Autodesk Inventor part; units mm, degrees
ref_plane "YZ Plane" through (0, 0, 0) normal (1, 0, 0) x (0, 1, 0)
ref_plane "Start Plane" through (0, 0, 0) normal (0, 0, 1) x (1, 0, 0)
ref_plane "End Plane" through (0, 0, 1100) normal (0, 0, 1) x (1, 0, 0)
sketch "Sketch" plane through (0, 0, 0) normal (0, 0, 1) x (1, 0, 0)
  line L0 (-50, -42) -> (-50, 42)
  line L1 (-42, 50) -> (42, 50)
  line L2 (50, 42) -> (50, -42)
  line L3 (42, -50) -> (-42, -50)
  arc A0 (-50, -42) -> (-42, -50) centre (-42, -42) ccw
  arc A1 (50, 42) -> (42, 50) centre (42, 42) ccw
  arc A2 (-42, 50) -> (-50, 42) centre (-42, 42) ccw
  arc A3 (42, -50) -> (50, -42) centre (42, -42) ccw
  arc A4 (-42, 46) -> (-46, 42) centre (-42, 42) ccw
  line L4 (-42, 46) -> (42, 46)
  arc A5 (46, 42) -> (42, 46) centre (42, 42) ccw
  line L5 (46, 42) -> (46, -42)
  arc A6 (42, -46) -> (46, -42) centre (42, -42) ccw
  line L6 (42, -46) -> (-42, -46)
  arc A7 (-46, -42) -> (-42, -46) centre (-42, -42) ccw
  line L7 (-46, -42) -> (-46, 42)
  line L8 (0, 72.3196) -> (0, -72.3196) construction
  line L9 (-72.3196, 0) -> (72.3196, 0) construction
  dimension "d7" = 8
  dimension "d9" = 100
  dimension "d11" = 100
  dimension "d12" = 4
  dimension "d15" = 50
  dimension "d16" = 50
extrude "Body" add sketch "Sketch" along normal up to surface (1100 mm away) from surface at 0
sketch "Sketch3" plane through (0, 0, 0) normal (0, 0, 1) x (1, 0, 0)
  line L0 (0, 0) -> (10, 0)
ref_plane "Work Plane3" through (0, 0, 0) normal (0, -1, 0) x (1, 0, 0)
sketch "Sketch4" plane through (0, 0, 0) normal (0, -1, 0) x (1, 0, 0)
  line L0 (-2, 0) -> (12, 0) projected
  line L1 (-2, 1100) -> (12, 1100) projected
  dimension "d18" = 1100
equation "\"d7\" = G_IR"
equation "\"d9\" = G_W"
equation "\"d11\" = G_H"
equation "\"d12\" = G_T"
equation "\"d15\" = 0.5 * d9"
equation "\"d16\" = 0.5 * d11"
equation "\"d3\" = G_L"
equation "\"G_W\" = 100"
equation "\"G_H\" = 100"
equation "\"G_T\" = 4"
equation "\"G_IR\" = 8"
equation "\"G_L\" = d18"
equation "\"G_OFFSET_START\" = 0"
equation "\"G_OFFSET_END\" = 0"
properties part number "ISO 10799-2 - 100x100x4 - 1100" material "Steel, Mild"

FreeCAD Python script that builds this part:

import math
import FreeCAD as App
import Part
import Sketcher

V = App.Vector
Q = App.Units.Quantity

doc = App.newDocument("Part")
body = doc.addObject("PartDesign::Body", "Body")

# Sketch on XY plane
sketch1 = body.newObject("Sketcher::SketchObject", "Sketch")
sketch1.AttachmentSupport = (doc.getObject("XY_Plane"), [""])
sketch1.MapMode = "FlatFace"
sketch1.addGeometry([
    Part.LineSegment(V(-50, 42, 0), V(-50, -42, 0)),  # 0
    Part.ArcOfCircle(Part.Circle(V(-42, -42, 0), V(0, 0, 1), 8), math.radians(180), math.radians(270)),  # 1
    Part.LineSegment(V(-42, -50, 0), V(42, -50, 0)),  # 2
    Part.ArcOfCircle(Part.Circle(V(42, -42, 0), V(0, 0, 1), 8), math.radians(-90), math.radians(0)),  # 3
    Part.LineSegment(V(50, -42, 0), V(50, 42, 0)),  # 4
    Part.ArcOfCircle(Part.Circle(V(42, 42, 0), V(0, 0, 1), 8), math.radians(0), math.radians(90)),  # 5
    Part.LineSegment(V(42, 50, 0), V(-42, 50, 0)),  # 6
    Part.ArcOfCircle(Part.Circle(V(-42, 42, 0), V(0, 0, 1), 8), math.radians(90), math.radians(180)),  # 7
    Part.ArcOfCircle(Part.Circle(V(-42, 42, 0), V(0, 0, 1), 4), math.radians(90), math.radians(180)),  # 8
    Part.LineSegment(V(-42, 46, 0), V(42, 46, 0)),  # 9
    Part.ArcOfCircle(Part.Circle(V(42, 42, 0), V(0, 0, 1), 4), math.radians(0), math.radians(90)),  # 10
    Part.LineSegment(V(46, 42, 0), V(46, -42, 0)),  # 11
    Part.ArcOfCircle(Part.Circle(V(42, -42, 0), V(0, 0, 1), 4), math.radians(-90), math.radians(0)),  # 12
    Part.LineSegment(V(42, -46, 0), V(-42, -46, 0)),  # 13
    Part.ArcOfCircle(Part.Circle(V(-42, -42, 0), V(0, 0, 1), 4), math.radians(180), math.radians(270)),  # 14
    Part.LineSegment(V(-46, -42, 0), V(-46, 42, 0)),  # 15
], False)
sketch1.addConstraint([
    Sketcher.Constraint("Tangent", 0, 2, 1, 1),
    Sketcher.Constraint("Tangent", 1, 2, 2, 1),
    Sketcher.Constraint("Tangent", 2, 2, 3, 1),
    Sketcher.Constraint("Tangent", 3, 2, 4, 1),
    Sketcher.Constraint("Tangent", 4, 2, 5, 1),
    Sketcher.Constraint("Tangent", 5, 2, 6, 1),
    Sketcher.Constraint("Tangent", 6, 2, 7, 1),
    Sketcher.Constraint("Tangent", 7, 2, 0, 1),
    Sketcher.Constraint("Tangent", 8, 1, 9, 1),
    Sketcher.Constraint("Tangent", 9, 2, 10, 2),
    Sketcher.Constraint("Tangent", 10, 1, 11, 1),
    Sketcher.Constraint("Tangent", 11, 2, 12, 2),
    Sketcher.Constraint("Tangent", 12, 1, 13, 1),
    Sketcher.Constraint("Tangent", 13, 2, 14, 2),
    Sketcher.Constraint("Tangent", 14, 1, 15, 1),
    Sketcher.Constraint("Tangent", 15, 2, 8, 2),
    Sketcher.Constraint("Vertical", 0),
    Sketcher.Constraint("Horizontal", 2),
    Sketcher.Constraint("Vertical", 4),
    Sketcher.Constraint("Horizontal", 6),
    Sketcher.Constraint("Horizontal", 9),
    Sketcher.Constraint("Vertical", 11),
    Sketcher.Constraint("Horizontal", 13),
    Sketcher.Constraint("Vertical", 15),
    Sketcher.Constraint("Coincident", 8, 3, 7, 3),
    Sketcher.Constraint("Coincident", 10, 3, 5, 3),
    Sketcher.Constraint("Coincident", 12, 3, 3, 3),
    Sketcher.Constraint("Equal", 1, 3),
    Sketcher.Constraint("Equal", 3, 5),
    Sketcher.Constraint("Equal", 5, 7),
    Sketcher.Constraint("Equal", 12, 14),
    Sketcher.Constraint("Symmetric", 1, 3, 5, 3, -1, 1),
    Sketcher.Constraint("Equal", 13, 0),
    Sketcher.Constraint("Radius", 1, Q("8 mm")),
    Sketcher.Constraint("Radius", 8, Q("4 mm")),
    Sketcher.Constraint("DistanceX", 0, 2, -1, 1, Q("50 mm")),
])
pad1 = body.newObject("PartDesign::Pad", "Pad")
pad1.Profile = sketch1
pad1.Length = 1100

doc.recompute()
